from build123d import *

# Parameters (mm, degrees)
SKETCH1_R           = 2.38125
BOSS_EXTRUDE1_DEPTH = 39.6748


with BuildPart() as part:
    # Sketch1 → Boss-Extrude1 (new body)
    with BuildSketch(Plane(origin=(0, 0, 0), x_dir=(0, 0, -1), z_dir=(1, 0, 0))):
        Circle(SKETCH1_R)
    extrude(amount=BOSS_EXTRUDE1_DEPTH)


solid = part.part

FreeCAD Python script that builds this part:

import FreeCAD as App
import Part
import Sketcher

V = App.Vector
Q = App.Units.Quantity

doc = App.newDocument("Part")
params = doc.addObject("Spreadsheet::Sheet", "Params")
for row, (alias, value) in enumerate([
    ("sketch1_diameter", "0.1875 in"),
    ("pad1_length", "1.562 in"),
], start=1):
    params.set(f"A{row}", alias)
    params.set(f"B{row}", "=" + value)
    params.setAlias(f"B{row}", alias)

body = doc.addObject("PartDesign::Body", "Body")

# Sketch on YZ plane
sketch1 = doc.addObject("Sketcher::SketchObject", "Sketch")
body.addObject(sketch1)
sketch1.AttachmentSupport = (doc.YZ_Plane, [""])
sketch1.MapMode = "FlatFace"
sketch1.addGeometry(Part.Circle(V(0, 0, 0), V(0, 0, 1), 2.4), False)
sketch1.addConstraint([
    Sketcher.Constraint("Coincident", 0, 3, -1, 1),
    Sketcher.Constraint("Diameter", 0, Q("0.1875 in")),
])
sketch1.setExpression("Constraints[1]", "Params.sketch1_diameter")
pad1 = doc.addObject("PartDesign::Pad", "Pad")
body.addObject(pad1)
pad1.Profile = sketch1
pad1.setExpression("Length", "Params.pad1_length")

doc.recompute()
